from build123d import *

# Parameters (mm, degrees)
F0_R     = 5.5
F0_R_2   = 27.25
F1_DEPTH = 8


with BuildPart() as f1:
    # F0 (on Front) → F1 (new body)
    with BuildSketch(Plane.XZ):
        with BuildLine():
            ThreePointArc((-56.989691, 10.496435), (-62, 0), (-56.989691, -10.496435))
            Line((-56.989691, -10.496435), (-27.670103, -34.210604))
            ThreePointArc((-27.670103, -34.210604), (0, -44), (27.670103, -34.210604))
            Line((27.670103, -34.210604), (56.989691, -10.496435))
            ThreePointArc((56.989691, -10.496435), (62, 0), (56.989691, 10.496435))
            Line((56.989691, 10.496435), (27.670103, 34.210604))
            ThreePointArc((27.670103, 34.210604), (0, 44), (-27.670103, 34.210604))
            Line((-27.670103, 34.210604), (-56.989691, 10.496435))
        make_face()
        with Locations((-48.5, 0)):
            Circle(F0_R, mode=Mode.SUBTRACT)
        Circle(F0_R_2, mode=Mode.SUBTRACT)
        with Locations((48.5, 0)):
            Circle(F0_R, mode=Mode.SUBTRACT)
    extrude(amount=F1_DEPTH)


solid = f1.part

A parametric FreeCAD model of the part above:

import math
import FreeCAD as App
import Part
import Sketcher
from FreeCAD import Vector
Q = App.Units.Quantity

doc = App.newDocument("Part")
params = doc.addObject("Spreadsheet::Sheet", "Params")
for row, (alias, value) in enumerate([
    ("sketch1_diameter", "11 mm"),
    ("sketch1_radius", "44.000001 mm"),
    ("sketch1_diameter2", "54.5 mm"),
    ("sketch1_radius2", "13.5 mm"),
    ("pad1_length", "8 mm"),
], start=1):
    params.set(f"A{row}", alias)
    params.set(f"B{row}", "=" + value)
    params.setAlias(f"B{row}", alias)

body = doc.addObject("PartDesign::Body", "Body")

# Sketch on XZ plane
sketch1 = body.newObject("Sketcher::SketchObject", "Sketch")
sketch1.AttachmentSupport = (doc.getObject("XZ_Plane"), [""])
sketch1.MapMode = "FlatFace"
sketch1.addGeometry(Part.ArcOfCircle(Part.Circle(Vector(-48.5, 0, 0), Vector(0, 0, 1), 13.5), math.radians(128.966508), math.radians(231.033492)), False)
sketch1.addGeometry(Part.LineSegment(Vector(-56.989691, -10.496435, 0), Vector(-27.670103, -34.210604, 0)), False)
sketch1.addGeometry(Part.ArcOfCircle(Part.Circle(Vector(0, 0.000001, 0), Vector(0, 0, 1), 44.000001), math.radians(-128.966504), math.radians(-51.033496)), False)
sketch1.addGeometry(Part.LineSegment(Vector(27.670103, -34.210604, 0), Vector(56.989691, -10.496435, 0)), False)
sketch1.addGeometry(Part.ArcOfCircle(Part.Circle(Vector(48.5, 0, 0), Vector(0, 0, 1), 13.5), math.radians(-51.033492), math.radians(51.033492)), False)
sketch1.addGeometry(Part.LineSegment(Vector(56.989691, 10.496435, 0), Vector(27.670103, 34.210604, 0)), False)
sketch1.addGeometry(Part.ArcOfCircle(Part.Circle(Vector(0, -0.000001, 0), Vector(0, 0, 1), 44.000001), math.radians(51.033496), math.radians(128.966504)), False)
sketch1.addGeometry(Part.LineSegment(Vector(-27.670103, 34.210604, 0), Vector(-56.989691, 10.496435, 0)), False)
sketch1.addGeometry(Part.Circle(Vector(-48.5, 0, 0), Vector(0, 0, 1), 5.5), False)
sketch1.addGeometry(Part.Circle(Vector(0, 0, 0), Vector(0, 0, 1), 27.25), False)
sketch1.addGeometry(Part.Circle(Vector(48.5, 0, 0), Vector(0, 0, 1), 5.5), False)
sketch1.addConstraint(Sketcher.Constraint("Tangent", 0, 2, 1, 1))
sketch1.addConstraint(Sketcher.Constraint("Tangent", 1, 2, 2, 1))
sketch1.addConstraint(Sketcher.Constraint("Tangent", 2, 2, 3, 1))
sketch1.addConstraint(Sketcher.Constraint("Tangent", 3, 2, 4, 1))
sketch1.addConstraint(Sketcher.Constraint("Tangent", 4, 2, 5, 1))
sketch1.addConstraint(Sketcher.Constraint("Tangent", 5, 2, 6, 1))
sketch1.addConstraint(Sketcher.Constraint("Tangent", 6, 2, 7, 1))
sketch1.addConstraint(Sketcher.Constraint("Tangent", 7, 2, 0, 1))
sketch1.addConstraint(Sketcher.Constraint("Coincident", 2, 3, -1, 1))
sketch1.addConstraint(Sketcher.Constraint("Coincident", 6, 3, -1, 1))
sketch1.addConstraint(Sketcher.Constraint("Coincident", 9, 3, -1, 1))
sketch1.addConstraint(Sketcher.Constraint("Coincident", 8, 3, 0, 3))
sketch1.addConstraint(Sketcher.Constraint("Coincident", 10, 3, 4, 3))
sketch1.addConstraint(Sketcher.Constraint("Equal", 0, 4))
sketch1.addConstraint(Sketcher.Constraint("Equal", 2, 6))
sketch1.addConstraint(Sketcher.Constraint("Equal", 8, 10))
sketch1.addConstraint(Sketcher.Constraint("Symmetric", 0, 3, 4, 3, -1, 1))
sketch1.addConstraint(Sketcher.Constraint("PointOnObject", 0, 3, -1))
sketch1.addConstraint(Sketcher.Constraint("Diameter", 8, Q("11 mm")))
sketch1.addConstraint(Sketcher.Constraint("Radius", 2, Q("44.000001 mm")))
sketch1.addConstraint(Sketcher.Constraint("Diameter", 9, Q("54.5 mm")))
sketch1.addConstraint(Sketcher.Constraint("Radius", 0, Q("13.5 mm")))
sketch1.addConstraint(Sketcher.Constraint("DistanceX", 0, 3, 4, 3, Q("97 mm")))
sketch1.setExpression("Constraints[18]", "Params.sketch1_diameter")
sketch1.setExpression("Constraints[19]", "Params.sketch1_radius")
sketch1.setExpression("Constraints[20]", "Params.sketch1_diameter2")
sketch1.setExpression("Constraints[21]", "Params.sketch1_radius2")
pad1 = body.newObject("PartDesign::Pad", "Pad")
pad1.Profile = sketch1
pad1.setExpression("Length", "Params.pad1_length")

doc.recompute()
